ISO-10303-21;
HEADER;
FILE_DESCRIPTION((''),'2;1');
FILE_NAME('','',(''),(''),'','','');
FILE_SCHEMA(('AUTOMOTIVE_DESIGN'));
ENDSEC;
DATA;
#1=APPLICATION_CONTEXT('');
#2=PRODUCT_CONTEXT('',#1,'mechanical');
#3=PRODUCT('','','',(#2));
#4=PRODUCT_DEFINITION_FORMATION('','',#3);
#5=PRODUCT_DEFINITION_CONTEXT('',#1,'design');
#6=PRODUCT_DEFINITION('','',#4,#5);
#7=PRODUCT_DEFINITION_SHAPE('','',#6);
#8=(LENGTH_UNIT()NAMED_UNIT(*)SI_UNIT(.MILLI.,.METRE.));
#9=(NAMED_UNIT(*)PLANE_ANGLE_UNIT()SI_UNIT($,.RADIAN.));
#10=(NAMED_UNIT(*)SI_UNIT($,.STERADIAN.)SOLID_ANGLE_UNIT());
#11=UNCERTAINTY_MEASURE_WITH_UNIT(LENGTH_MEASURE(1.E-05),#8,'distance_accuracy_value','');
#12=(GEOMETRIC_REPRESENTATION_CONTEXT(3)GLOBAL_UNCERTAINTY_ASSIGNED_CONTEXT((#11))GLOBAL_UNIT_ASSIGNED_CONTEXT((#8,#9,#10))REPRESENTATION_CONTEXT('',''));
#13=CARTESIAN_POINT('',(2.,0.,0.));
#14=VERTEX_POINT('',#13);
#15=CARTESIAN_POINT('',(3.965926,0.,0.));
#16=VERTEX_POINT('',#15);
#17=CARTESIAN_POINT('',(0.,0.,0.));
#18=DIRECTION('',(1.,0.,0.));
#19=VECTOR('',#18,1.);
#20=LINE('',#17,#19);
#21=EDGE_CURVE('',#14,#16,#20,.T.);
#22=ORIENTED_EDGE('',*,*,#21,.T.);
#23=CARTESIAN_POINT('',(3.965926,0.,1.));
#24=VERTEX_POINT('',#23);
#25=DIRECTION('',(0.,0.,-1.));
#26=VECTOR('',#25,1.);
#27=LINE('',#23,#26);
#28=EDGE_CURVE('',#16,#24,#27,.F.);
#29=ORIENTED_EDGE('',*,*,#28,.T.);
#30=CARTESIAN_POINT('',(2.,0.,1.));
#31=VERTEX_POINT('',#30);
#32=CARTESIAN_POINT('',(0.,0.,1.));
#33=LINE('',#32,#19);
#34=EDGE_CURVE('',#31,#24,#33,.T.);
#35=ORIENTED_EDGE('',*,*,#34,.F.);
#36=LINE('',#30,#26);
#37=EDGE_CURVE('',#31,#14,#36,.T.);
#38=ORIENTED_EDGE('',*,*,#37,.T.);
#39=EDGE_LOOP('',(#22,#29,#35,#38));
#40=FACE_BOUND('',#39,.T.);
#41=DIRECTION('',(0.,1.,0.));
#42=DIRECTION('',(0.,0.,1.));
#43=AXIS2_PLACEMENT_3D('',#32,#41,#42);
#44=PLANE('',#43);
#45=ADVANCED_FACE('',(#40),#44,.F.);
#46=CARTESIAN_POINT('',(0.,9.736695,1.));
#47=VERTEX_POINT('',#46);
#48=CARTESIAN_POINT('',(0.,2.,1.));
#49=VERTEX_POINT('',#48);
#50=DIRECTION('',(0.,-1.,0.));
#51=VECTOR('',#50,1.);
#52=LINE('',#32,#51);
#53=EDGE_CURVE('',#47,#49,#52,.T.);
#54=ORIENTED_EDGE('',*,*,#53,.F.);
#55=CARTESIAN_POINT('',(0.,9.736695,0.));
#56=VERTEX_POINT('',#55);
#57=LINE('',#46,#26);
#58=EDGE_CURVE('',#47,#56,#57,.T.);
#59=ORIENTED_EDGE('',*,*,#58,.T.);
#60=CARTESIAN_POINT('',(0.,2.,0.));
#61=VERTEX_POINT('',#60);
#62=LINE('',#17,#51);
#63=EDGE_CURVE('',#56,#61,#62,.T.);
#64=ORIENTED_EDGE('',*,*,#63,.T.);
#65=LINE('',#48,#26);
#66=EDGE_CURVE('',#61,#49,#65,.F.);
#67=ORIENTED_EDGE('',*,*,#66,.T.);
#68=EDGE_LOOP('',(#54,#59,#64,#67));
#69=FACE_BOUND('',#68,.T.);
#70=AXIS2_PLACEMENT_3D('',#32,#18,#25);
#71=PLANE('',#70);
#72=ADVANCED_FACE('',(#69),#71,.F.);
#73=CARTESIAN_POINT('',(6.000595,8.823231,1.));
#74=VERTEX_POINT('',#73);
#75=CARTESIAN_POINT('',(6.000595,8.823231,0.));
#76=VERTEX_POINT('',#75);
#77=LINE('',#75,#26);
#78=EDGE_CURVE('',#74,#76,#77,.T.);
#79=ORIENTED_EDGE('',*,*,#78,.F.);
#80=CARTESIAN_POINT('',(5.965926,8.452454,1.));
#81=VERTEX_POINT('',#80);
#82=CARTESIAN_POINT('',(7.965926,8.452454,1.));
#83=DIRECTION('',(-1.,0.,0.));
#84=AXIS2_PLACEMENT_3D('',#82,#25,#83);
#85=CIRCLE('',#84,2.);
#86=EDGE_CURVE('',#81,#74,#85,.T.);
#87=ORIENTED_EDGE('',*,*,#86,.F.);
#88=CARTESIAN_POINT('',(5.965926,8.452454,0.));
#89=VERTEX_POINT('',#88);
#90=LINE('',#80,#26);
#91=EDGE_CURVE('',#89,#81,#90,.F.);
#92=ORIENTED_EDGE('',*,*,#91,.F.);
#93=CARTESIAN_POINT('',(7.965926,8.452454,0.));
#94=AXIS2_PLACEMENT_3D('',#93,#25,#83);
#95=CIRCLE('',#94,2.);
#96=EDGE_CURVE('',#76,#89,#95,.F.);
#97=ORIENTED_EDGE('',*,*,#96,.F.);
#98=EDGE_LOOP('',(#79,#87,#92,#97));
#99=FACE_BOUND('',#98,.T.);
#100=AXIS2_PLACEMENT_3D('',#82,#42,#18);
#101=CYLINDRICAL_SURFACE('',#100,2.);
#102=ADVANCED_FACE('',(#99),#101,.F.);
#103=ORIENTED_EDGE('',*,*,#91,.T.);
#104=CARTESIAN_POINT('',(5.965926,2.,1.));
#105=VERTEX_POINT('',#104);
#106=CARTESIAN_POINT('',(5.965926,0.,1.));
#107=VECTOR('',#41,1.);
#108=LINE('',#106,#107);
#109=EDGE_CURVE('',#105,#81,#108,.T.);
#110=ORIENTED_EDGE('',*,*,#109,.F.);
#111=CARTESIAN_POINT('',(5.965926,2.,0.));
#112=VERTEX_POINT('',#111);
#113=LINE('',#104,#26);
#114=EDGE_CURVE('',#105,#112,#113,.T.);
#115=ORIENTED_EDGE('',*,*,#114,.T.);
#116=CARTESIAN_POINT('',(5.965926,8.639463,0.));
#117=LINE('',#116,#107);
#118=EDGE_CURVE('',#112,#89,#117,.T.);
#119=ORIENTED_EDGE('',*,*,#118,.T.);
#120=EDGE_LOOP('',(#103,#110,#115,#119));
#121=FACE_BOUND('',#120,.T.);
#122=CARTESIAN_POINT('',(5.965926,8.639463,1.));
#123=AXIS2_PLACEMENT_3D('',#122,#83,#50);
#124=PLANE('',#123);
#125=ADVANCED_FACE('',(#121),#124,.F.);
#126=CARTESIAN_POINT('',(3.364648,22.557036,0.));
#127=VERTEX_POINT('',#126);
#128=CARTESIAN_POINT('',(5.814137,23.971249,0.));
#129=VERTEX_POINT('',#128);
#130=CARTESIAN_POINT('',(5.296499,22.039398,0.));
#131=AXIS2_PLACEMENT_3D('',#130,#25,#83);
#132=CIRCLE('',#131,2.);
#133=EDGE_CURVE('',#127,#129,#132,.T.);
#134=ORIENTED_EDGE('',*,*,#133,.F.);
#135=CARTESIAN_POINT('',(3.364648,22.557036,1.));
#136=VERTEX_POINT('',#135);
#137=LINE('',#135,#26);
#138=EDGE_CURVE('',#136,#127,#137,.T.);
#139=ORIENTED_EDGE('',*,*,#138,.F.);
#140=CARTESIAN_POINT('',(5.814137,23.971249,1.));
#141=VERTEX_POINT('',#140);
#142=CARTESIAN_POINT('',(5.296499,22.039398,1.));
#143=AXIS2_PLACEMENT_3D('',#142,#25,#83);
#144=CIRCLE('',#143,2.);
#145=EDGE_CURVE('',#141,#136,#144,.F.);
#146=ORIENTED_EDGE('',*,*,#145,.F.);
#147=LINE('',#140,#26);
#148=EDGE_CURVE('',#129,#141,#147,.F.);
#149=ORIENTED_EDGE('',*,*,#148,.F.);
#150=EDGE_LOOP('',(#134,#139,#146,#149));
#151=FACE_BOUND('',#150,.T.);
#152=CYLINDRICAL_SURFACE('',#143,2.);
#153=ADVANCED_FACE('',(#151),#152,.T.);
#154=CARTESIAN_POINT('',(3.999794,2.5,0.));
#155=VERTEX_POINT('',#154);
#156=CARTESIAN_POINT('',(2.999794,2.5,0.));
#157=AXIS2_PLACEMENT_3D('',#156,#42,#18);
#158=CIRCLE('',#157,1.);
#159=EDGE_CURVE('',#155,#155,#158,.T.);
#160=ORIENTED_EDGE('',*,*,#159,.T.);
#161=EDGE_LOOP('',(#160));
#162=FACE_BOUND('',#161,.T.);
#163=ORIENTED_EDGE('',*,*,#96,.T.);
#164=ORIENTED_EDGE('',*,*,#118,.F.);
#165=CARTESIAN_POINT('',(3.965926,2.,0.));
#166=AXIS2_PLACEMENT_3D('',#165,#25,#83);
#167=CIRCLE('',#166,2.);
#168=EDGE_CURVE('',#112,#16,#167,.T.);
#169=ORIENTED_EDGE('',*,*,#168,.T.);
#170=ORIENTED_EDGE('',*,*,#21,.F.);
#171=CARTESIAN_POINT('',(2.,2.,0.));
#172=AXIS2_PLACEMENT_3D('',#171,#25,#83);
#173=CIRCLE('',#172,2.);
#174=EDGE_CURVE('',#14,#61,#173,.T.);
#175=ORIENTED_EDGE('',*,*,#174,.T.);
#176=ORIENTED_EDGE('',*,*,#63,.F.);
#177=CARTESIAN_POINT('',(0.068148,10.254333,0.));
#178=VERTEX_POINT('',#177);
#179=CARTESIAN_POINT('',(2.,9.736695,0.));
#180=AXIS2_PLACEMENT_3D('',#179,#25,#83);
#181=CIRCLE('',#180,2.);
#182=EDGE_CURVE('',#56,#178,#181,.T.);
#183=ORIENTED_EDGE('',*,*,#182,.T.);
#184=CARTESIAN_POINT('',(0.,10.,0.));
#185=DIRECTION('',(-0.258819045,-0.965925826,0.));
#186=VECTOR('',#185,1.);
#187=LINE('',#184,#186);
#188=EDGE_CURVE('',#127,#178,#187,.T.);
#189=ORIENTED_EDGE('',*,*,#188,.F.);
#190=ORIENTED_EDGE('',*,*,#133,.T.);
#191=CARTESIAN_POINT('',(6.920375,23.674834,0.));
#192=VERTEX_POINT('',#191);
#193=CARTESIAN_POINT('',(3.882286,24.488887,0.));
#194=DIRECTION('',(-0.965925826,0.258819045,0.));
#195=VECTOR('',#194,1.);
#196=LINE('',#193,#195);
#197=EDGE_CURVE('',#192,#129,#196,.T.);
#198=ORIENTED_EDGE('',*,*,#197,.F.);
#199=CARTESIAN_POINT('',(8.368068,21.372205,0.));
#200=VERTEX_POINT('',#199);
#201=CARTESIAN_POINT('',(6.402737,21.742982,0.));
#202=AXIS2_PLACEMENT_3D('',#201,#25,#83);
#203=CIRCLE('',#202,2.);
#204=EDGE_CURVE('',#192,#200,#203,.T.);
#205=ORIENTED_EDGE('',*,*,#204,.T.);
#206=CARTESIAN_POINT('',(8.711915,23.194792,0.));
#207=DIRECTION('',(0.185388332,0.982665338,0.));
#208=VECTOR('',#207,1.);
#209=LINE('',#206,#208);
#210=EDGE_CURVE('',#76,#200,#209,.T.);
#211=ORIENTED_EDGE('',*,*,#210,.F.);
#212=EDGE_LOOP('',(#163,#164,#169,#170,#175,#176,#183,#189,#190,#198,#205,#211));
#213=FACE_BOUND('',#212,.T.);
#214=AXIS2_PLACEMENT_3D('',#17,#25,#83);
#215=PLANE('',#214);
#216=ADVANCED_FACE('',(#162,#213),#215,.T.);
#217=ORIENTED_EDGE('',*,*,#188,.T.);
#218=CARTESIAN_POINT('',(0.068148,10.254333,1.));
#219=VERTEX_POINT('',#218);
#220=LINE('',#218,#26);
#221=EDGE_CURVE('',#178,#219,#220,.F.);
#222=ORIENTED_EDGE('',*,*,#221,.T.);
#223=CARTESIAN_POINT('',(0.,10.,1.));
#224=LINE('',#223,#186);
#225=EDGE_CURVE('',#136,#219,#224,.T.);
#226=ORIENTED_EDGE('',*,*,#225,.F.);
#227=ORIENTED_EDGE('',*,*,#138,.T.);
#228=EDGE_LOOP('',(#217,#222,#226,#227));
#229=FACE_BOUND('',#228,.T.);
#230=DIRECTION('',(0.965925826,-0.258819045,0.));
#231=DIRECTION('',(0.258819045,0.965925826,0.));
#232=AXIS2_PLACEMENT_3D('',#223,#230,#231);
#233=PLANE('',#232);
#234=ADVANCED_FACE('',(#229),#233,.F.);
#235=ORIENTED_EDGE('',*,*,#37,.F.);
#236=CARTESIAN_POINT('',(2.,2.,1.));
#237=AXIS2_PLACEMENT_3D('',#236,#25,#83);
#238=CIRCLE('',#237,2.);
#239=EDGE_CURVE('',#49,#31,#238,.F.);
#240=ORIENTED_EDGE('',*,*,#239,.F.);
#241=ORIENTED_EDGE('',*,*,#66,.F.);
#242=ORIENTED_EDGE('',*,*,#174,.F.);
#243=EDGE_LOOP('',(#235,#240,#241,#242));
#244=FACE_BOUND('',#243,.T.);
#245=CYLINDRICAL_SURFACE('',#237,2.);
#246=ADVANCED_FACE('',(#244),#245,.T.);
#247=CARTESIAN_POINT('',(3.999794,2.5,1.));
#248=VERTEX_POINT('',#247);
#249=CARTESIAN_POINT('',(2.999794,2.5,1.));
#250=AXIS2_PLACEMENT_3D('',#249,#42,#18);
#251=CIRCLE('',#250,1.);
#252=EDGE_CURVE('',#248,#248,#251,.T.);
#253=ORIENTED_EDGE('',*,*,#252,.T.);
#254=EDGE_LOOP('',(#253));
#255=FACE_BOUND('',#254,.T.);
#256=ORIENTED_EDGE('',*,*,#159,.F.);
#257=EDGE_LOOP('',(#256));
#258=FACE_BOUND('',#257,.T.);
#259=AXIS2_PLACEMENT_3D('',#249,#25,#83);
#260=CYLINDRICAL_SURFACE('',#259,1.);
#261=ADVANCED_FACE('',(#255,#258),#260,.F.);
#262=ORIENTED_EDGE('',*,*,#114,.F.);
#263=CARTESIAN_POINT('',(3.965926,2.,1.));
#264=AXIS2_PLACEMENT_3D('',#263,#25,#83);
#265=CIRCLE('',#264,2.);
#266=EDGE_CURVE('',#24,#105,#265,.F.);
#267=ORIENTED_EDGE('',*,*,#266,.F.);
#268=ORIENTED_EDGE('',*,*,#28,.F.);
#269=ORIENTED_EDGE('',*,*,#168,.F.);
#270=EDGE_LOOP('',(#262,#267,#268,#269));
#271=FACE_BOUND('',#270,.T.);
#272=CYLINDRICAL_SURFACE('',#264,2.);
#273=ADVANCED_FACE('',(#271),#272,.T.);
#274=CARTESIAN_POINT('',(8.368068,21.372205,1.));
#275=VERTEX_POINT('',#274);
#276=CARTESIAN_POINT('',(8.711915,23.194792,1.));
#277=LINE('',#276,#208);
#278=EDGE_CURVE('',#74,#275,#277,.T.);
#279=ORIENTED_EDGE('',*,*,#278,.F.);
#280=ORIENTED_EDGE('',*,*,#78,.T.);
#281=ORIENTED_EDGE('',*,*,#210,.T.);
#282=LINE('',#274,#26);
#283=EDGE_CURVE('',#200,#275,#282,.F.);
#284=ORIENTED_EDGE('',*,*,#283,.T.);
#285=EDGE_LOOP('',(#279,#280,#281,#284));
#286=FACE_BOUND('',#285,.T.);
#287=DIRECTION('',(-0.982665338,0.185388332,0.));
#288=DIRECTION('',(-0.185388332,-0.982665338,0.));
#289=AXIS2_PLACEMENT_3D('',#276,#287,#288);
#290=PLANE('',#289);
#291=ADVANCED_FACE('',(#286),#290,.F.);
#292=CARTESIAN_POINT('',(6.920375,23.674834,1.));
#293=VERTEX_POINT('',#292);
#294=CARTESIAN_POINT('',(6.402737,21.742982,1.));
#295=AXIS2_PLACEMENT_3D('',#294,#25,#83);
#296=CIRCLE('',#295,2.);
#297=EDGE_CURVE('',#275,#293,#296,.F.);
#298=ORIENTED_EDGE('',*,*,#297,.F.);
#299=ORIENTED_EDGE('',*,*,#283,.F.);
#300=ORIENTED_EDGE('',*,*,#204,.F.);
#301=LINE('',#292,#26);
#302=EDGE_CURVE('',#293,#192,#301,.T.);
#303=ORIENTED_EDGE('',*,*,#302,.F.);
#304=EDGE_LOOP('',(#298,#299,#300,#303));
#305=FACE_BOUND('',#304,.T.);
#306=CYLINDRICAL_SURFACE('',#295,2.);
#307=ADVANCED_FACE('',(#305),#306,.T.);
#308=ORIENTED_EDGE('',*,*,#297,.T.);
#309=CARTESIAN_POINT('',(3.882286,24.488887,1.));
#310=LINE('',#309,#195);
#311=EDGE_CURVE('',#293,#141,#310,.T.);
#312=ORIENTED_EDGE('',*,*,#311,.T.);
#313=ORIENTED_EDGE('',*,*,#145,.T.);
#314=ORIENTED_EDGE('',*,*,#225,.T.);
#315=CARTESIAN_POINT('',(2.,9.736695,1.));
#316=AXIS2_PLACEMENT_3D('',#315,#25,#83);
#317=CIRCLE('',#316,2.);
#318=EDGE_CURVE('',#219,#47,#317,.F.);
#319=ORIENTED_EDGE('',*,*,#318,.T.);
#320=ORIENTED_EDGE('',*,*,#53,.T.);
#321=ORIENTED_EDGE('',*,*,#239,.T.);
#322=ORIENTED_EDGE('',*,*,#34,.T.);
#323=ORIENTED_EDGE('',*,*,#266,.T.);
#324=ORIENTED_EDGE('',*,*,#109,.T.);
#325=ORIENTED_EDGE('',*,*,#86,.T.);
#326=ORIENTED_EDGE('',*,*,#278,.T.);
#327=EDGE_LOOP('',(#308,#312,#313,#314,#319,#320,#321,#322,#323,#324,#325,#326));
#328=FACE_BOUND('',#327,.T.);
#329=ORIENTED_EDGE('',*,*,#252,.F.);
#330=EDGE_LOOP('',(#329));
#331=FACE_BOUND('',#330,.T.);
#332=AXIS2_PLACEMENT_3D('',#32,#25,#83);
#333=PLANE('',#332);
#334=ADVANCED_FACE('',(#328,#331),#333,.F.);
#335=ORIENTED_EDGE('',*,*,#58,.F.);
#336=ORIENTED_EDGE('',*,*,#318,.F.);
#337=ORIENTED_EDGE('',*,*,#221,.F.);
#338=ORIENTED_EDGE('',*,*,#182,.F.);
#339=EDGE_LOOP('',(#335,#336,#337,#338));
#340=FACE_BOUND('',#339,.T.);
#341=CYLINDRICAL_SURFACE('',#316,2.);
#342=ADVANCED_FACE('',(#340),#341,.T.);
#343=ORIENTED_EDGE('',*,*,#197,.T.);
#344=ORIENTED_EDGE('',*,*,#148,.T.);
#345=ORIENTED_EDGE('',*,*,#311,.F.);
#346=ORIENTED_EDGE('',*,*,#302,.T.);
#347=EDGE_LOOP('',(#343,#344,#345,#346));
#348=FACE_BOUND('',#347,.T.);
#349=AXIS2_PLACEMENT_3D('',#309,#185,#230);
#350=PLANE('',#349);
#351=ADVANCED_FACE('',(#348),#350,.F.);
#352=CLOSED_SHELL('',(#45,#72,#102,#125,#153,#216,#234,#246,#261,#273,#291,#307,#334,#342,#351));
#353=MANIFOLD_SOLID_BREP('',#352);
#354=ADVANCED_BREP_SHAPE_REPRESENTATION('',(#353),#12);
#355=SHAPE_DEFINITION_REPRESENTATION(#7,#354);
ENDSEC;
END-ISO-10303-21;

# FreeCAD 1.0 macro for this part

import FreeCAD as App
import Part
import Sketcher
from FreeCAD import Vector
Q = App.Units.Quantity


def edges_at(feature, points):
    """Names of the edges that pass closest to the given points."""
    edges = feature.Shape.Edges
    near = lambda p: min(range(len(edges)), key=lambda i: edges[i].distToShape(Part.Vertex(*p))[0])
    return sorted({f"Edge{near(p) + 1}" for p in points})


def add_polygon(sketch, points):
    """Adds a closed chain of lines whose ends are joined by coincident constraints."""
    first, n = sketch.GeometryCount, len(points)
    for a, b in zip(points, points[1:] + points[:1]):
        sketch.addGeometry(Part.LineSegment(App.Vector(*a, 0), App.Vector(*b, 0)), False)
    for i in range(n):
        sketch.addConstraint(Sketcher.Constraint("Coincident", first + i, 2, first + (i + 1) % n, 1))

doc = App.newDocument("Part")
body = doc.addObject("PartDesign::Body", "Body")

# Sketch on XY plane
sketch1 = doc.addObject("Sketcher::SketchObject", "Sketch")
body.addObject(sketch1)
sketch1.AttachmentSupport = (doc.XY_Plane, [""])
sketch1.MapMode = "FlatFace"
add_polygon(sketch1, [(3.882286, 24.488887), (0, 10), (0, 0), (5.965926, 0), (5.965926, 8.639463), (8.711915, 23.194792)])  # lines 0-5
sketch1.addGeometry(Part.Circle(Vector(2.999794, 2.5, 0), Vector(0, 0, 1), 1), False)  # 6
sketch1.addConstraint(Sketcher.Constraint("Vertical", 1))
sketch1.addConstraint(Sketcher.Constraint("Horizontal", 2))
sketch1.addConstraint(Sketcher.Constraint("Vertical", 3))
sketch1.addConstraint(Sketcher.Constraint("Coincident", 1, 2, -1, 1))
sketch1.addConstraint(Sketcher.Constraint("Perpendicular", 0, 5))
sketch1.addConstraint(Sketcher.Constraint("Diameter", 6, 2.0))
sketch1.addConstraint(Sketcher.Constraint("DistanceY", 1, 2, 1, 1, 10.0))
sketch1.addConstraint(Sketcher.Constraint("Angle", 0, Q("-105 deg")))
sketch1.addConstraint(Sketcher.Constraint("Distance", 0, 15.0))
sketch1.addConstraint(Sketcher.Constraint("Distance", 5, 5.0))
sketch1.addConstraint(Sketcher.Constraint("DistanceY", -1, 1, 6, 3, 2.5))
sketch1.addConstraint(Sketcher.Constraint("Distance", 4, 14.812092))
sketch1.addConstraint(Sketcher.Constraint("DistanceX", 2, 1, 2, 2, 5.965926))
sketch1.addConstraint(Sketcher.Constraint("DistanceX", 6, 3, 4, 2, 5.712121))
pad1 = doc.addObject("PartDesign::Pad", "Pad")
body.addObject(pad1)
pad1.Profile = sketch1
pad1.Length = 1
doc.recompute()

fillet = doc.addObject("PartDesign::Fillet", "Fillet")
body.addObject(fillet)
fillet.Base = (pad1, edges_at(pad1, [(5.966, 0, 0.5)]))
fillet.Radius = 2
doc.recompute()

fillet2 = doc.addObject("PartDesign::Fillet", "Fillet001")
body.addObject(fillet2)
fillet2.Base = (fillet, edges_at(fillet, [(0, 0, 0.5)]))
fillet2.Radius = 2
doc.recompute()

fillet3 = doc.addObject("PartDesign::Fillet", "Fillet002")
body.addObject(fillet3)
fillet3.Base = (fillet2, edges_at(fillet2, [(8.712, 23.195, 0.5)]))
fillet3.Radius = 2
doc.recompute()

fillet4 = doc.addObject("PartDesign::Fillet", "Fillet003")
body.addObject(fillet4)
fillet4.Base = (fillet3, edges_at(fillet3, [(3.882, 24.489, 0.5)]))
fillet4.Radius = 2
doc.recompute()

fillet5 = doc.addObject("PartDesign::Fillet", "Fillet004")
body.addObject(fillet5)
fillet5.Base = (fillet4, edges_at(fillet4, [(0, 10, 0.5)]))
fillet5.Radius = 2
doc.recompute()

fillet6 = doc.addObject("PartDesign::Fillet", "Fillet005")
body.addObject(fillet6)
fillet6.Base = (fillet5, edges_at(fillet5, [(5.966, 8.639, 0.5)]))
fillet6.Radius = 2

doc.recompute()
